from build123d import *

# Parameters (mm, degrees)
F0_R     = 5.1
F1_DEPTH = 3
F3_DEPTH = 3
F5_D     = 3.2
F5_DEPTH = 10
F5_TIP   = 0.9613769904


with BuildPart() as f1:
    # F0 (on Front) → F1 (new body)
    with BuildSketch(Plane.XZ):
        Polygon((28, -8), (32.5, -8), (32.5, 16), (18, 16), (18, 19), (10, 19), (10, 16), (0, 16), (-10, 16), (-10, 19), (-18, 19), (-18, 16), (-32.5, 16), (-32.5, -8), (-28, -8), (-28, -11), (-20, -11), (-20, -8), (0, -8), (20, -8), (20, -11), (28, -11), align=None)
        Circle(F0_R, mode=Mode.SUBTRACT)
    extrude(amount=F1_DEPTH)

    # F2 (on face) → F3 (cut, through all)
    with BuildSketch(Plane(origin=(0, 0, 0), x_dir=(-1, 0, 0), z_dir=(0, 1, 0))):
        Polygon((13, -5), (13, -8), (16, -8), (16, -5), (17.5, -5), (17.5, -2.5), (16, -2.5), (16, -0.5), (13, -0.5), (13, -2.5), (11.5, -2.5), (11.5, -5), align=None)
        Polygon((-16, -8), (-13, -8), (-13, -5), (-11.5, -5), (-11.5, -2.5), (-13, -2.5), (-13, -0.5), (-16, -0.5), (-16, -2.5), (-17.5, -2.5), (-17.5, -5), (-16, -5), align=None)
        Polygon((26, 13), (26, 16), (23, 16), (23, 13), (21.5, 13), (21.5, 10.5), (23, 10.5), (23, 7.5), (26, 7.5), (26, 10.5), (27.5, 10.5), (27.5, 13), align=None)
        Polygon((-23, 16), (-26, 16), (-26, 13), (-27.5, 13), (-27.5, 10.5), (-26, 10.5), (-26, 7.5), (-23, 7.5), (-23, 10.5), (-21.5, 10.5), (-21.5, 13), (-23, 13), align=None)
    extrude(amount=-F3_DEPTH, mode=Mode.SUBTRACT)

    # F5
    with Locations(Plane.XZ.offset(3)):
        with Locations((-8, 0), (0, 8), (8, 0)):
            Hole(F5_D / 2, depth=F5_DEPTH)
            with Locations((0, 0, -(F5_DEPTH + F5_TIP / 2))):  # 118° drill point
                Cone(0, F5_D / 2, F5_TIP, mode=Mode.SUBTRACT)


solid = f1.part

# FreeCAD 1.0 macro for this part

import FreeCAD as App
import Part
import Sketcher

V = App.Vector


def add_polygon(sketch, points):
    """Adds a closed chain of lines whose ends are joined by coincident constraints."""
    first, n = sketch.GeometryCount, len(points)
    for a, b in zip(points, points[1:] + points[:1]):
        sketch.addGeometry(Part.LineSegment(App.Vector(*a, 0), App.Vector(*b, 0)), False)
    for i in range(n):
        sketch.addConstraint(Sketcher.Constraint("Coincident", first + i, 2, first + (i + 1) % n, 1))

doc = App.newDocument("Part")
body = doc.addObject("PartDesign::Body", "Body")

sketch1 = doc.addObject("Sketcher::SketchObject", "Sketch")
body.addObject(sketch1)
sketch1.AttachmentSupport = (doc.XZ_Plane, [""])
sketch1.MapMode = "FlatFace"
add_polygon(sketch1, [(28, -8), (32.5, -8), (32.5, 16), (18, 16), (18, 19), (10, 19), (10, 16), (-10, 16), (-10, 19), (-18, 19), (-18, 16), (-32.5, 16), (-32.5, -8), (-28, -8), (-28, -11), (-20, -11), (-20, -8), (20, -8), (20, -11), (28, -11)])
sketch1.addGeometry(Part.Circle(V(0, 0, 0), V(0, 0, 1), 5.1), False)
sketch1.addConstraint(Sketcher.Constraint("Horizontal", 0))
sketch1.addConstraint(Sketcher.Constraint("Vertical", 1))
sketch1.addConstraint(Sketcher.Constraint("Horizontal", 2))
sketch1.addConstraint(Sketcher.Constraint("Vertical", 3))
sketch1.addConstraint(Sketcher.Constraint("Horizontal", 4))
sketch1.addConstraint(Sketcher.Constraint("Vertical", 5))
sketch1.addConstraint(Sketcher.Constraint("Horizontal", 6))
sketch1.addConstraint(Sketcher.Constraint("Vertical", 7))
sketch1.addConstraint(Sketcher.Constraint("Horizontal", 8))
sketch1.addConstraint(Sketcher.Constraint("Vertical", 9))
sketch1.addConstraint(Sketcher.Constraint("Horizontal", 10))
sketch1.addConstraint(Sketcher.Constraint("Vertical", 11))
sketch1.addConstraint(Sketcher.Constraint("Horizontal", 12))
sketch1.addConstraint(Sketcher.Constraint("Vertical", 13))
sketch1.addConstraint(Sketcher.Constraint("Horizontal", 14))
sketch1.addConstraint(Sketcher.Constraint("Vertical", 15))
sketch1.addConstraint(Sketcher.Constraint("Horizontal", 16))
sketch1.addConstraint(Sketcher.Constraint("Vertical", 17))
sketch1.addConstraint(Sketcher.Constraint("Horizontal", 18))
sketch1.addConstraint(Sketcher.Constraint("Vertical", 19))
sketch1.addConstraint(Sketcher.Constraint("Coincident", 20, 3, -1, 1))
sketch1.addConstraint(Sketcher.Constraint("Symmetric", 4, 2, 7, 2, -2))
sketch1.addConstraint(Sketcher.Constraint("Symmetric", 2, 2, 9, 2, -2))
sketch1.addConstraint(Sketcher.Constraint("Symmetric", 0, 2, 11, 2, -2))
sketch1.addConstraint(Sketcher.Constraint("Symmetric", 14, 2, 17, 2, -2))
sketch1.addConstraint(Sketcher.Constraint("Horizontal", 2, 2, 5, 2))
sketch1.addConstraint(Sketcher.Constraint("Horizontal", 12, 2, 15, 2))
sketch1.addConstraint(Sketcher.Constraint("Equal", 0, 12))
sketch1.addConstraint(Sketcher.Constraint("Equal", 8, 14))
sketch1.addConstraint(Sketcher.Constraint("Equal", 9, 13))
sketch1.addConstraint(Sketcher.Constraint("Diameter", 20, 10.2))
sketch1.addConstraint(Sketcher.Constraint("DistanceX", 4, 2, 4, 1, 8.0))
sketch1.addConstraint(Sketcher.Constraint("DistanceX", 6, 2, 6, 1, 20.0))
sketch1.addConstraint(Sketcher.Constraint("DistanceX", 16, 1, 16, 2, 40.0))
sketch1.addConstraint(Sketcher.Constraint("DistanceY", 1, 1, 1, 2, 24.0))
sketch1.addConstraint(Sketcher.Constraint("DistanceY", 3, 1, 3, 2, 3.0))
sketch1.addConstraint(Sketcher.Constraint("DistanceX", 0, 1, 0, 2, 4.5))
sketch1.addConstraint(Sketcher.Constraint("DistanceY", 0, 2, -1, 1, 8.0))
pad1 = doc.addObject("PartDesign::Pad", "Pad")
body.addObject(pad1)
pad1.Profile = sketch1
pad1.Length = 3

sketch2 = doc.addObject("Sketcher::SketchObject", "Sketch001")
body.addObject(sketch2)
sketch2.AttachmentSupport = (doc.XZ_Plane, [""])
sketch2.MapMode = "FlatFace"
add_polygon(sketch2, [(-13, -5), (-13, -8), (-16, -8), (-16, -5), (-17.5, -5), (-17.5, -2.5), (-16, -2.5), (-16, -0.5), (-13, -0.5), (-13, -2.5), (-11.5, -2.5), (-11.5, -5)])
add_polygon(sketch2, [(16, -8), (13, -8), (13, -5), (11.5, -5), (11.5, -2.5), (13, -2.5), (13, -0.5), (16, -0.5), (16, -2.5), (17.5, -2.5), (17.5, -5), (16, -5)])
add_polygon(sketch2, [(-26, 13), (-26, 16), (-23, 16), (-23, 13), (-21.5, 13), (-21.5, 10.5), (-23, 10.5), (-23, 7.5), (-26, 7.5), (-26, 10.5), (-27.5, 10.5), (-27.5, 13)])
add_polygon(sketch2, [(23, 16), (26, 16), (26, 13), (27.5, 13), (27.5, 10.5), (26, 10.5), (26, 7.5), (23, 7.5), (23, 10.5), (21.5, 10.5), (21.5, 13), (23, 13)])
sketch2.addConstraint(Sketcher.Constraint("Vertical", 0))
sketch2.addConstraint(Sketcher.Constraint("Horizontal", 1))
sketch2.addConstraint(Sketcher.Constraint("Vertical", 2))
sketch2.addConstraint(Sketcher.Constraint("Horizontal", 3))
sketch2.addConstraint(Sketcher.Constraint("Vertical", 4))
sketch2.addConstraint(Sketcher.Constraint("Horizontal", 5))
sketch2.addConstraint(Sketcher.Constraint("Vertical", 6))
sketch2.addConstraint(Sketcher.Constraint("Horizontal", 7))
sketch2.addConstraint(Sketcher.Constraint("Vertical", 8))
sketch2.addConstraint(Sketcher.Constraint("Horizontal", 9))
sketch2.addConstraint(Sketcher.Constraint("Vertical", 10))
sketch2.addConstraint(Sketcher.Constraint("Horizontal", 11))
sketch2.addConstraint(Sketcher.Constraint("Horizontal", 12))
sketch2.addConstraint(Sketcher.Constraint("Vertical", 13))
sketch2.addConstraint(Sketcher.Constraint("Horizontal", 14))
sketch2.addConstraint(Sketcher.Constraint("Vertical", 15))
sketch2.addConstraint(Sketcher.Constraint("Horizontal", 16))
sketch2.addConstraint(Sketcher.Constraint("Vertical", 17))
sketch2.addConstraint(Sketcher.Constraint("Horizontal", 18))
sketch2.addConstraint(Sketcher.Constraint("Vertical", 19))
sketch2.addConstraint(Sketcher.Constraint("Horizontal", 20))
sketch2.addConstraint(Sketcher.Constraint("Vertical", 21))
sketch2.addConstraint(Sketcher.Constraint("Horizontal", 22))
sketch2.addConstraint(Sketcher.Constraint("Vertical", 23))
sketch2.addConstraint(Sketcher.Constraint("Vertical", 24))
sketch2.addConstraint(Sketcher.Constraint("Horizontal", 25))
sketch2.addConstraint(Sketcher.Constraint("Vertical", 26))
sketch2.addConstraint(Sketcher.Constraint("Horizontal", 27))
sketch2.addConstraint(Sketcher.Constraint("Vertical", 28))
sketch2.addConstraint(Sketcher.Constraint("Horizontal", 29))
sketch2.addConstraint(Sketcher.Constraint("Vertical", 30))
sketch2.addConstraint(Sketcher.Constraint("Horizontal", 31))
sketch2.addConstraint(Sketcher.Constraint("Vertical", 32))
sketch2.addConstraint(Sketcher.Constraint("Horizontal", 33))
sketch2.addConstraint(Sketcher.Constraint("Vertical", 34))
sketch2.addConstraint(Sketcher.Constraint("Horizontal", 35))
sketch2.addConstraint(Sketcher.Constraint("Horizontal", 36))
sketch2.addConstraint(Sketcher.Constraint("Vertical", 37))
sketch2.addConstraint(Sketcher.Constraint("Horizontal", 38))
sketch2.addConstraint(Sketcher.Constraint("Vertical", 39))
sketch2.addConstraint(Sketcher.Constraint("Horizontal", 40))
sketch2.addConstraint(Sketcher.Constraint("Vertical", 41))
sketch2.addConstraint(Sketcher.Constraint("Horizontal", 42))
sketch2.addConstraint(Sketcher.Constraint("Vertical", 43))
sketch2.addConstraint(Sketcher.Constraint("Horizontal", 44))
sketch2.addConstraint(Sketcher.Constraint("Vertical", 45))
sketch2.addConstraint(Sketcher.Constraint("Horizontal", 46))
sketch2.addConstraint(Sketcher.Constraint("Vertical", 47))
sketch2.addConstraint(Sketcher.Constraint("Symmetric", 0, 2, 12, 2, -2))
sketch2.addConstraint(Sketcher.Constraint("Symmetric", 10, 2, 14, 2, -2))
sketch2.addConstraint(Sketcher.Constraint("Symmetric", 8, 2, 16, 2, -2))
sketch2.addConstraint(Sketcher.Constraint("Symmetric", 6, 2, 18, 2, -2))
sketch2.addConstraint(Sketcher.Constraint("Symmetric", 4, 2, 20, 2, -2))
sketch2.addConstraint(Sketcher.Constraint("Symmetric", 2, 2, 22, 2, -2))
sketch2.addConstraint(Sketcher.Constraint("Symmetric", 24, 2, 36, 2, -2))
sketch2.addConstraint(Sketcher.Constraint("Symmetric", 34, 2, 38, 2, -2))
sketch2.addConstraint(Sketcher.Constraint("Symmetric", 32, 2, 40, 2, -2))
sketch2.addConstraint(Sketcher.Constraint("Symmetric", 30, 2, 42, 2, -2))
sketch2.addConstraint(Sketcher.Constraint("Symmetric", 28, 2, 44, 2, -2))
sketch2.addConstraint(Sketcher.Constraint("Symmetric", 26, 2, 46, 2, -2))
sketch2.addConstraint(Sketcher.Constraint("Horizontal", 5, 2, 8, 2))
sketch2.addConstraint(Sketcher.Constraint("Horizontal", 3, 2, 10, 2))
sketch2.addConstraint(Sketcher.Constraint("Horizontal", 29, 2, 32, 2))
sketch2.addConstraint(Sketcher.Constraint("Horizontal", 27, 2, 34, 2))
sketch2.addConstraint(Sketcher.Constraint("Vertical", 2, 2, 5, 2))
sketch2.addConstraint(Sketcher.Constraint("Vertical", 0, 2, 7, 2))
sketch2.addConstraint(Sketcher.Constraint("Vertical", 26, 2, 29, 2))
sketch2.addConstraint(Sketcher.Constraint("Vertical", 24, 2, 31, 2))
sketch2.addConstraint(Sketcher.Constraint("Equal", 5, 9))
sketch2.addConstraint(Sketcher.Constraint("Equal", 18, 25))
sketch2.addConstraint(Sketcher.Constraint("Equal", 22, 27))
sketch2.addConstraint(Sketcher.Constraint("Equal", 29, 33))
sketch2.addConstraint(Sketcher.Constraint("Equal", 42, 0))
sketch2.addConstraint(Sketcher.Constraint("Equal", 23, 24))
sketch2.addConstraint(Sketcher.Constraint("Equal", 21, 28))
sketch2.addConstraint(Sketcher.Constraint("Equal", 26, 30))
sketch2.addConstraint(Sketcher.Constraint("DistanceX", 1, 2, 1, 1, 3.0))
sketch2.addConstraint(Sketcher.Constraint("DistanceY", 6, 1, 6, 2, 2.0))
sketch2.addConstraint(Sketcher.Constraint("DistanceX", 3, 2, 3, 1, 1.5))
sketch2.addConstraint(Sketcher.Constraint("DistanceY", 4, 1, 4, 2, 2.5))
sketch2.addConstraint(Sketcher.Constraint("DistanceX", 0, 2, -1, 1, 13.0))
sketch2.addConstraint(Sketcher.Constraint("DistanceY", 0, 2, -1, 1, 8.0))
sketch2.addConstraint(Sketcher.Constraint("DistanceX", 24, 2, -1, 1, 26.0))
sketch2.addConstraint(Sketcher.Constraint("DistanceY", -1, 1, 24, 2, 16.0))
pocket1 = doc.addObject("PartDesign::Pocket", "Pocket")
body.addObject(pocket1)
pocket1.Profile = sketch2
pocket1.Type = "ThroughAll"
pocket1.Reversed = True

sketch3 = doc.addObject("Sketcher::SketchObject", "Sketch002")
body.addObject(sketch3)
sketch3.AttachmentSupport = (doc.XZ_Plane, [""])
sketch3.MapMode = "FlatFace"
sketch3.AttachmentOffset = App.Placement(V(0, 0, 3), App.Rotation())
sketch3.addGeometry(Part.Circle(V(-8, 0, 0), V(0, 0, 1), 1.6), False)
sketch3.addGeometry(Part.Circle(V(0, 8, 0), V(0, 0, 1), 1.6), False)
sketch3.addGeometry(Part.Circle(V(8, 0, 0), V(0, 0, 1), 1.6), False)
sketch3.addConstraint(Sketcher.Constraint("Equal", 0, 1))
sketch3.addConstraint(Sketcher.Constraint("Equal", 1, 2))
sketch3.addConstraint(Sketcher.Constraint("Symmetric", 0, 3, 2, 3, -1, 1))
sketch3.addConstraint(Sketcher.Constraint("PointOnObject", 0, 3, -1))
sketch3.addConstraint(Sketcher.Constraint("PointOnObject", 1, 3, -2))
sketch3.addConstraint(Sketcher.Constraint("Diameter", 0, 3.2))
sketch3.addConstraint(Sketcher.Constraint("DistanceX", 0, 3, -1, 1, 8.0))
sketch3.addConstraint(Sketcher.Constraint("DistanceY", -1, 1, 1, 3, 8.0))
doc.recompute()
hole = doc.addObject("PartDesign::Hole", "Hole")
body.addObject(hole)
hole.Profile = sketch3
hole.ThreadType = "None"
hole.Diameter = 3.2
hole.DepthType = "Dimension"
hole.Depth = 10
hole.DrillPoint = "Angled"
hole.DrillPointAngle = 118

doc.recompute()
